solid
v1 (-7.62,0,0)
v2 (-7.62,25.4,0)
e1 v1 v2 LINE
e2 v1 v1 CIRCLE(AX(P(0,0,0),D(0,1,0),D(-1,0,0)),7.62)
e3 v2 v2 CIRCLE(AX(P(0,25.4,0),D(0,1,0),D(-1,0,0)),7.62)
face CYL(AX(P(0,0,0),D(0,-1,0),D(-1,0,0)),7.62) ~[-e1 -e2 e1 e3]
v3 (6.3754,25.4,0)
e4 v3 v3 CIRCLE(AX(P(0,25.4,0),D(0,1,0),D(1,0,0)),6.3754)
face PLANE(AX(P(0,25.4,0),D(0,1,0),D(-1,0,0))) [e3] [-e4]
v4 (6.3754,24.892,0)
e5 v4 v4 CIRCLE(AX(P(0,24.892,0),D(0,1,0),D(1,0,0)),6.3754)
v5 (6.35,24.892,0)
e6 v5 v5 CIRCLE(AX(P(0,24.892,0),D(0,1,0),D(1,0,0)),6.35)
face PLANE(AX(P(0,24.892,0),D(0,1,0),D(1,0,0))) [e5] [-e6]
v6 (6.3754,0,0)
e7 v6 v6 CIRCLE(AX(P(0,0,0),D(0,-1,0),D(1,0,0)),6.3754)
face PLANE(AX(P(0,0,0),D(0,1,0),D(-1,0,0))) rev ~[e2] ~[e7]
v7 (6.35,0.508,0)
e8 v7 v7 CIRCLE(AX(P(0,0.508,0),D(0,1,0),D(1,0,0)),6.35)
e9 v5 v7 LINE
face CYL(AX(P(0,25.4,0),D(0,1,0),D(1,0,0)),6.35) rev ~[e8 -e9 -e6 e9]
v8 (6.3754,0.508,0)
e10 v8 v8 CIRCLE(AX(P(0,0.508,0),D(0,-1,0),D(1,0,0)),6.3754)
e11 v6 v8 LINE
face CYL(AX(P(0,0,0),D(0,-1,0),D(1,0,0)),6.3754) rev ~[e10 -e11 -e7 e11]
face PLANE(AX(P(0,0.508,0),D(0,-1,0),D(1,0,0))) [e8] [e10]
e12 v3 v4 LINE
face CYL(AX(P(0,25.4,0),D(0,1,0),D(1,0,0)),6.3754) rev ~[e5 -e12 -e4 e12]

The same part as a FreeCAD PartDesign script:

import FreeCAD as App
import Part
import Sketcher
Q = App.Units.Quantity

doc = App.newDocument("Part")
body = doc.addObject("PartDesign::Body", "Body")

# Sketch on XZ plane
sketch1 = body.newObject("Sketcher::SketchObject", "Sketch")
sketch1.AttachmentSupport = (doc.getObject("XZ_Plane"), [""])
sketch1.MapMode = "FlatFace"
sketch1.addGeometry(Part.Circle(App.Vector(0, 0, 0), App.Vector(0, 0, 1), 8), False)
sketch1.addConstraint([
    Sketcher.Constraint("Coincident", 0, 3, -1, 1),
    Sketcher.Constraint("Diameter", 0, Q("0.6 in")),
])
pad1 = body.newObject("PartDesign::Pad", "Pad")
pad1.Profile = sketch1
pad1.Length = Q("1 in")
pad1.Reversed = True

# Sketch on XZ plane
sketch2 = body.newObject("Sketcher::SketchObject", "Sketch001")
sketch2.AttachmentSupport = (doc.getObject("XZ_Plane"), [""])
sketch2.MapMode = "FlatFace"
sketch2.AttachmentOffset = App.Placement(App.Vector(0, 0, -1 * 25.4), App.Rotation())
sketch2.addGeometry(Part.Circle(App.Vector(0, 0, 0), App.Vector(0, 0, 1), 6), False)
sketch2.addConstraint([
    Sketcher.Constraint("Coincident", 0, 3, -1, 1),
    Sketcher.Constraint("Diameter", 0, Q("0.5 in")),
])
pocket1 = body.newObject("PartDesign::Pocket", "Pocket")
pocket1.Profile = sketch2
pocket1.Length = Q("1 in")
pocket1.Reversed = True

# Sketch on XZ plane
sketch3 = body.newObject("Sketcher::SketchObject", "Sketch002")
sketch3.AttachmentSupport = (doc.getObject("XZ_Plane"), [""])
sketch3.MapMode = "FlatFace"
sketch3.AttachmentOffset = App.Placement(App.Vector(0, 0, -1 * 25.4), App.Rotation())
sketch3.addGeometry(Part.Circle(App.Vector(0, 0, 0), App.Vector(0, 0, 1), 6), False)
sketch3.addConstraint([
    Sketcher.Constraint("Coincident", 0, 3, -1, 1),
    Sketcher.Constraint("Diameter", 0, Q("0.502 in")),
])
pocket2 = body.newObject("PartDesign::Pocket", "Pocket001")
pocket2.Profile = sketch3
pocket2.Length = Q("0.02 in")
pocket2.Reversed = True

# Sketch on XZ plane
sketch4 = body.newObject("Sketcher::SketchObject", "Sketch003")
sketch4.AttachmentSupport = (doc.getObject("XZ_Plane"), [""])
sketch4.MapMode = "FlatFace"
sketch4.addGeometry(Part.Circle(App.Vector(0, 0, 0), App.Vector(0, 0, 1), 6), False)
sketch4.addConstraint([
    Sketcher.Constraint("Coincident", 0, 3, -1, 1),
    Sketcher.Constraint("Diameter", 0, Q("0.502 in")),
])
pocket3 = body.newObject("PartDesign::Pocket", "Pocket002")
pocket3.Profile = sketch4
pocket3.Length = Q("0.02 in")

doc.recompute()
